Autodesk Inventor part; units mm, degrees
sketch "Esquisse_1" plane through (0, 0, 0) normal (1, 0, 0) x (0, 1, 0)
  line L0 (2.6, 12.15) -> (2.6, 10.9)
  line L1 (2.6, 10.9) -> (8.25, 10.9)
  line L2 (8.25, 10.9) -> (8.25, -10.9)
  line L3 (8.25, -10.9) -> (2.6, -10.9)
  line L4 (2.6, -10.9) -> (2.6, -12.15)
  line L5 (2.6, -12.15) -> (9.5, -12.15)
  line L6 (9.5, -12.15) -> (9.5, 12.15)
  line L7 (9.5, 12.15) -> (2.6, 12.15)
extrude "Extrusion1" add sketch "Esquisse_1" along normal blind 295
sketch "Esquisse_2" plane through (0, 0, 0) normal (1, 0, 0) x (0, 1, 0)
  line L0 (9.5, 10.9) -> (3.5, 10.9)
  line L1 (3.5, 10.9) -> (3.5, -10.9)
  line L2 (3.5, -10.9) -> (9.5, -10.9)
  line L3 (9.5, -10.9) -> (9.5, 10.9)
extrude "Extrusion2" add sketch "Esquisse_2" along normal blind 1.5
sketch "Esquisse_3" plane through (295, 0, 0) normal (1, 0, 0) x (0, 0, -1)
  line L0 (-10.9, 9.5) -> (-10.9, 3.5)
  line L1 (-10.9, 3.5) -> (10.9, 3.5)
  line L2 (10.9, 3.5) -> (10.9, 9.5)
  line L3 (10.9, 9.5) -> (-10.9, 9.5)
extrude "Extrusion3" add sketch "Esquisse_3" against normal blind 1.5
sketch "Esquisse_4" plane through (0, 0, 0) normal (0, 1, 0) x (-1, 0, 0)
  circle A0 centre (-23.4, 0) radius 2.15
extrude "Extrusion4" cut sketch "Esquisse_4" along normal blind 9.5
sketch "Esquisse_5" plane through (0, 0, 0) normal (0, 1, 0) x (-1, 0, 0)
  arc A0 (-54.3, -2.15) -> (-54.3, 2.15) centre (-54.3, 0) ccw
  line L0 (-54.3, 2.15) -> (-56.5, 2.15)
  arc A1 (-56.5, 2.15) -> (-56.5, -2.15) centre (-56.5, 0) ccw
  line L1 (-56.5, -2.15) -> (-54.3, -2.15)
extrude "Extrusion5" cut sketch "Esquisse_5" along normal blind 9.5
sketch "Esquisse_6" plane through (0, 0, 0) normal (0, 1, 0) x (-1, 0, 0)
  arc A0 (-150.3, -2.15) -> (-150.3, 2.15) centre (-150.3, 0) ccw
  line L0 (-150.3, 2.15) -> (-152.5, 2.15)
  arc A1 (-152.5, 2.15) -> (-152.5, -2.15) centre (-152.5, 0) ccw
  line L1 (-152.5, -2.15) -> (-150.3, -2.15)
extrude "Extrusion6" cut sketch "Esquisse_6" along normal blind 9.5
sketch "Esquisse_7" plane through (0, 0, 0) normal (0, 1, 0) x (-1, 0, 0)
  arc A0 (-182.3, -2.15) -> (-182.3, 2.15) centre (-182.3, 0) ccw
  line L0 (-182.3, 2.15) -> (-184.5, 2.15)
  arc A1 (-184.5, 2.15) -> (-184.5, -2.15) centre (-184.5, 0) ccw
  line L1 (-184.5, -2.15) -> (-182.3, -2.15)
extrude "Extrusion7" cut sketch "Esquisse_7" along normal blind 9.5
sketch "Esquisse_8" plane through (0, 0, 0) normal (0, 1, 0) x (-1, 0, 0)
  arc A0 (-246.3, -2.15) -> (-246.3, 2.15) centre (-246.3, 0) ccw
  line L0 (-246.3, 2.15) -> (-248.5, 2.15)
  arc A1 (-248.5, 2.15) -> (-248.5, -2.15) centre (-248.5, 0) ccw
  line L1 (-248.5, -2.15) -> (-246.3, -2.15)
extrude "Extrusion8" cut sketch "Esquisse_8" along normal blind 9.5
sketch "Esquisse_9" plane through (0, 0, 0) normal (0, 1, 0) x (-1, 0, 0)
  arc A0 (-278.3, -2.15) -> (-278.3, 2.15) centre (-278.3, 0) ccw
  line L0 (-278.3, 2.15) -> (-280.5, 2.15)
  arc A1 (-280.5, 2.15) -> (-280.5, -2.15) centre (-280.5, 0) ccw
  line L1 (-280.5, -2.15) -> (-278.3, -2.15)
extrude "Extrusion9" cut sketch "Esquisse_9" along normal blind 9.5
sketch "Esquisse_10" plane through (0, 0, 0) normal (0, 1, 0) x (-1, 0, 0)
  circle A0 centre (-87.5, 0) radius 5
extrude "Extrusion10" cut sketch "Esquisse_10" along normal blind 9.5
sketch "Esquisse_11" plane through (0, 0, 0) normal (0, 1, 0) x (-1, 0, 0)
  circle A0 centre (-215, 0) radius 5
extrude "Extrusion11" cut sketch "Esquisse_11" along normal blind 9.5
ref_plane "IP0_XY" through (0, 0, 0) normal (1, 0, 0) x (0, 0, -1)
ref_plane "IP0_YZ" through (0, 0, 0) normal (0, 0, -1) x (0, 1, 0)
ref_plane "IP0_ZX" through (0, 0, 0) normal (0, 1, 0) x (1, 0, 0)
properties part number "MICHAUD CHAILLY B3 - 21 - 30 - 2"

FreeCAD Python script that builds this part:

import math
import FreeCAD as App
import Part
import Sketcher

V = App.Vector
Q = App.Units.Quantity


def add_polygon(sketch, points):
    """Adds a closed chain of lines whose ends are joined by coincident constraints."""
    first, n = sketch.GeometryCount, len(points)
    for a, b in zip(points, points[1:] + points[:1]):
        sketch.addGeometry(Part.LineSegment(App.Vector(*a, 0), App.Vector(*b, 0)), False)
    for i in range(n):
        sketch.addConstraint(Sketcher.Constraint("Coincident", first + i, 2, first + (i + 1) % n, 1))

doc = App.newDocument("Part")
body = doc.addObject("PartDesign::Body", "Body")

# Sketch on YZ plane
sketch1 = body.newObject("Sketcher::SketchObject", "Sketch")
sketch1.AttachmentSupport = (doc.getObject("YZ_Plane"), [""])
sketch1.MapMode = "FlatFace"
add_polygon(sketch1, [(9.5, 12.2), (2.6, 12.2), (2.6, 10.9), (8.2, 10.9), (8.2, -10.9), (2.6, -10.9), (2.6, -12.2), (9.5, -12.2)])  # lines 0-7
sketch1.addConstraint(Sketcher.Constraint("Horizontal", 0))
sketch1.addConstraint(Sketcher.Constraint("Vertical", 1))
sketch1.addConstraint(Sketcher.Constraint("Horizontal", 2))
sketch1.addConstraint(Sketcher.Constraint("Vertical", 3))
sketch1.addConstraint(Sketcher.Constraint("Horizontal", 4))
sketch1.addConstraint(Sketcher.Constraint("Vertical", 5))
sketch1.addConstraint(Sketcher.Constraint("Horizontal", 6))
sketch1.addConstraint(Sketcher.Constraint("Vertical", 7))
sketch1.addConstraint(Sketcher.Constraint("Symmetric", 1, 2, 4, 2, -1))
sketch1.addConstraint(Sketcher.Constraint("Equal", 1, 5))
sketch1.addConstraint(Sketcher.Constraint("DistanceX", 0, 2, 0, 1, Q("6.9 mm")))
sketch1.addConstraint(Sketcher.Constraint("DistanceY", 3, 2, 3, 1, Q("21.8 mm")))
sketch1.addConstraint(Sketcher.Constraint("DistanceY", 7, 1, 7, 2, Q("24.3 mm")))
sketch1.addConstraint(Sketcher.Constraint("DistanceX", 2, 1, 2, 2, Q("5.65 mm")))
sketch1.addConstraint(Sketcher.Constraint("DistanceX", -1, 1, 0, 2, Q("2.6 mm")))
pad1 = body.newObject("PartDesign::Pad", "Pad")
pad1.Profile = sketch1
pad1.Length = 295

# Sketch on YZ plane
sketch2 = body.newObject("Sketcher::SketchObject", "Sketch001")
sketch2.AttachmentSupport = (doc.getObject("YZ_Plane"), [""])
sketch2.MapMode = "FlatFace"
add_polygon(sketch2, [(10, -11), (10, 11), (4, 11), (4, -11)])  # lines 0-3
sketch2.addConstraint(Sketcher.Constraint("Vertical", 0))
sketch2.addConstraint(Sketcher.Constraint("Horizontal", 1))
sketch2.addConstraint(Sketcher.Constraint("Vertical", 2))
sketch2.addConstraint(Sketcher.Constraint("Horizontal", 3))
sketch2.addConstraint(Sketcher.Constraint("DistanceX", 1, 2, 1, 1, Q("6 mm")))
sketch2.addConstraint(Sketcher.Constraint("DistanceY", 0, 1, 0, 2, Q("21.8 mm")))
sketch2.addConstraint(Sketcher.Constraint("DistanceX", -1, 1, 0, 2, Q("9.5 mm")))
sketch2.addConstraint(Sketcher.Constraint("DistanceY", -1, 1, 0, 2, Q("10.9 mm")))
pad2 = body.newObject("PartDesign::Pad", "Pad001")
pad2.Profile = sketch2
pad2.Length = 1.5

# Sketch on YZ plane
sketch3 = body.newObject("Sketcher::SketchObject", "Sketch002")
sketch3.AttachmentSupport = (doc.getObject("YZ_Plane"), [""])
sketch3.MapMode = "FlatFace"
sketch3.AttachmentOffset = App.Placement(V(0, 0, 295), App.Rotation())
add_polygon(sketch3, [(10, -11), (10, 11), (4, 11), (4, -11)])  # lines 0-3
sketch3.addConstraint(Sketcher.Constraint("Vertical", 0))
sketch3.addConstraint(Sketcher.Constraint("Horizontal", 1))
sketch3.addConstraint(Sketcher.Constraint("Vertical", 2))
sketch3.addConstraint(Sketcher.Constraint("Horizontal", 3))
sketch3.addConstraint(Sketcher.Constraint("DistanceX", 1, 2, 1, 1, Q("6 mm")))
sketch3.addConstraint(Sketcher.Constraint("DistanceY", 0, 1, 0, 2, Q("21.8 mm")))
sketch3.addConstraint(Sketcher.Constraint("DistanceX", -1, 1, 0, 2, Q("9.5 mm")))
sketch3.addConstraint(Sketcher.Constraint("DistanceY", -1, 1, 0, 2, Q("10.9 mm")))
pad3 = body.newObject("PartDesign::Pad", "Pad002")
pad3.Profile = sketch3
pad3.Length = 1.5
pad3.Reversed = True

# Sketch on XZ plane
sketch4 = body.newObject("Sketcher::SketchObject", "Sketch003")
sketch4.AttachmentSupport = (doc.getObject("XZ_Plane"), [""])
sketch4.MapMode = "FlatFace"
sketch4.addGeometry(Part.Circle(V(23.4, 0, 0), V(0, 0, 1), 2.1), False)
sketch4.addConstraint(Sketcher.Constraint("PointOnObject", 0, 3, -1))
sketch4.addConstraint(Sketcher.Constraint("Diameter", 0, Q("4.3 mm")))
sketch4.addConstraint(Sketcher.Constraint("DistanceX", -1, 1, 0, 3, Q("23.4 mm")))
pocket1 = body.newObject("PartDesign::Pocket", "Pocket")
pocket1.Profile = sketch4
pocket1.Length = 9.5

# Sketch on XZ plane
sketch5 = body.newObject("Sketcher::SketchObject", "Sketch004")
sketch5.AttachmentSupport = (doc.getObject("XZ_Plane"), [""])
sketch5.MapMode = "FlatFace"
sketch5.addGeometry(Part.LineSegment(V(56.5, -2.1, 0), V(54.3, -2.1, 0)), False)
sketch5.addGeometry(Part.ArcOfCircle(Part.Circle(V(54.3, 0, 0), V(0, 0, 1), 2.1), math.radians(90), math.radians(270)), False)
sketch5.addGeometry(Part.LineSegment(V(54.3, 2.1, 0), V(56.5, 2.1, 0)), False)
sketch5.addGeometry(Part.ArcOfCircle(Part.Circle(V(56.5, 0, 0), V(0, 0, 1), 2.1), math.radians(-90), math.radians(90)), False)
sketch5.addConstraint(Sketcher.Constraint("Tangent", 0, 2, 1, 2))
sketch5.addConstraint(Sketcher.Constraint("Tangent", 1, 1, 2, 1))
sketch5.addConstraint(Sketcher.Constraint("Tangent", 2, 2, 3, 2))
sketch5.addConstraint(Sketcher.Constraint("Tangent", 3, 1, 0, 1))
sketch5.addConstraint(Sketcher.Constraint("Horizontal", 0))
sketch5.addConstraint(Sketcher.Constraint("Horizontal", 2))
sketch5.addConstraint(Sketcher.Constraint("PointOnObject", 1, 3, -1))
sketch5.addConstraint(Sketcher.Constraint("Radius", 1, Q("2.15 mm")))
sketch5.addConstraint(Sketcher.Constraint("DistanceX", 0, 2, 0, 1, Q("2.2 mm")))
sketch5.addConstraint(Sketcher.Constraint("DistanceX", -1, 1, 1, 3, Q("54.3 mm")))
pocket2 = body.newObject("PartDesign::Pocket", "Pocket001")
pocket2.Profile = sketch5
pocket2.Length = 9.5

# Sketch on XZ plane
sketch6 = body.newObject("Sketcher::SketchObject", "Sketch005")
sketch6.AttachmentSupport = (doc.getObject("XZ_Plane"), [""])
sketch6.MapMode = "FlatFace"
sketch6.addGeometry(Part.LineSegment(V(152.5, -2.1, 0), V(150.3, -2.1, 0)), False)
sketch6.addGeometry(Part.ArcOfCircle(Part.Circle(V(150.3, 0, 0), V(0, 0, 1), 2.1), math.radians(90), math.radians(270)), False)
sketch6.addGeometry(Part.LineSegment(V(150.3, 2.1, 0), V(152.5, 2.1, 0)), False)
sketch6.addGeometry(Part.ArcOfCircle(Part.Circle(V(152.5, 0, 0), V(0, 0, 1), 2.1), math.radians(-90), math.radians(90)), False)
sketch6.addConstraint(Sketcher.Constraint("Tangent", 0, 2, 1, 2))
sketch6.addConstraint(Sketcher.Constraint("Tangent", 1, 1, 2, 1))
sketch6.addConstraint(Sketcher.Constraint("Tangent", 2, 2, 3, 2))
sketch6.addConstraint(Sketcher.Constraint("Tangent", 3, 1, 0, 1))
sketch6.addConstraint(Sketcher.Constraint("Horizontal", 0))
sketch6.addConstraint(Sketcher.Constraint("Horizontal", 2))
sketch6.addConstraint(Sketcher.Constraint("PointOnObject", 1, 3, -1))
sketch6.addConstraint(Sketcher.Constraint("Radius", 1, Q("2.15 mm")))
sketch6.addConstraint(Sketcher.Constraint("DistanceX", 0, 2, 0, 1, Q("2.2 mm")))
sketch6.addConstraint(Sketcher.Constraint("DistanceX", -1, 1, 1, 3, Q("150.3 mm")))
pocket3 = body.newObject("PartDesign::Pocket", "Pocket002")
pocket3.Profile = sketch6
pocket3.Length = 9.5

# Sketch on XZ plane
sketch7 = body.newObject("Sketcher::SketchObject", "Sketch006")
sketch7.AttachmentSupport = (doc.getObject("XZ_Plane"), [""])
sketch7.MapMode = "FlatFace"
sketch7.addGeometry(Part.LineSegment(V(184.5, -2.1, 0), V(182.3, -2.1, 0)), False)
sketch7.addGeometry(Part.ArcOfCircle(Part.Circle(V(182.3, 0, 0), V(0, 0, 1), 2.1), math.radians(90), math.radians(270)), False)
sketch7.addGeometry(Part.LineSegment(V(182.3, 2.1, 0), V(184.5, 2.1, 0)), False)
sketch7.addGeometry(Part.ArcOfCircle(Part.Circle(V(184.5, 0, 0), V(0, 0, 1), 2.1), math.radians(-90), math.radians(90)), False)
sketch7.addConstraint(Sketcher.Constraint("Tangent", 0, 2, 1, 2))
sketch7.addConstraint(Sketcher.Constraint("Tangent", 1, 1, 2, 1))
sketch7.addConstraint(Sketcher.Constraint("Tangent", 2, 2, 3, 2))
sketch7.addConstraint(Sketcher.Constraint("Tangent", 3, 1, 0, 1))
sketch7.addConstraint(Sketcher.Constraint("Horizontal", 0))
sketch7.addConstraint(Sketcher.Constraint("Horizontal", 2))
sketch7.addConstraint(Sketcher.Constraint("PointOnObject", 1, 3, -1))
sketch7.addConstraint(Sketcher.Constraint("Radius", 1, Q("2.15 mm")))
sketch7.addConstraint(Sketcher.Constraint("DistanceX", 0, 2, 0, 1, Q("2.2 mm")))
sketch7.addConstraint(Sketcher.Constraint("DistanceX", -1, 1, 1, 3, Q("182.3 mm")))
pocket4 = body.newObject("PartDesign::Pocket", "Pocket003")
pocket4.Profile = sketch7
pocket4.Length = 9.5

# Sketch on XZ plane
sketch8 = body.newObject("Sketcher::SketchObject", "Sketch007")
sketch8.AttachmentSupport = (doc.getObject("XZ_Plane"), [""])
sketch8.MapMode = "FlatFace"
sketch8.addGeometry(Part.LineSegment(V(248.5, -2.1, 0), V(246.3, -2.1, 0)), False)
sketch8.addGeometry(Part.ArcOfCircle(Part.Circle(V(246.3, 0, 0), V(0, 0, 1), 2.1), math.radians(90), math.radians(270)), False)
sketch8.addGeometry(Part.LineSegment(V(246.3, 2.1, 0), V(248.5, 2.1, 0)), False)
sketch8.addGeometry(Part.ArcOfCircle(Part.Circle(V(248.5, 0, 0), V(0, 0, 1), 2.1), math.radians(-90), math.radians(90)), False)
sketch8.addConstraint(Sketcher.Constraint("Tangent", 0, 2, 1, 2))
sketch8.addConstraint(Sketcher.Constraint("Tangent", 1, 1, 2, 1))
sketch8.addConstraint(Sketcher.Constraint("Tangent", 2, 2, 3, 2))
sketch8.addConstraint(Sketcher.Constraint("Tangent", 3, 1, 0, 1))
sketch8.addConstraint(Sketcher.Constraint("Horizontal", 0))
sketch8.addConstraint(Sketcher.Constraint("Horizontal", 2))
sketch8.addConstraint(Sketcher.Constraint("PointOnObject", 1, 3, -1))
sketch8.addConstraint(Sketcher.Constraint("Radius", 1, Q("2.15 mm")))
sketch8.addConstraint(Sketcher.Constraint("DistanceX", 0, 2, 0, 1, Q("2.2 mm")))
sketch8.addConstraint(Sketcher.Constraint("DistanceX", -1, 1, 1, 3, Q("246.3 mm")))
pocket5 = body.newObject("PartDesign::Pocket", "Pocket004")
pocket5.Profile = sketch8
pocket5.Length = 9.5

# Sketch on XZ plane
sketch9 = body.newObject("Sketcher::SketchObject", "Sketch008")
sketch9.AttachmentSupport = (doc.getObject("XZ_Plane"), [""])
sketch9.MapMode = "FlatFace"
sketch9.addGeometry(Part.LineSegment(V(280.5, -2.1, 0), V(278.3, -2.1, 0)), False)
sketch9.addGeometry(Part.ArcOfCircle(Part.Circle(V(278.3, 0, 0), V(0, 0, 1), 2.1), math.radians(90), math.radians(270)), False)
sketch9.addGeometry(Part.LineSegment(V(278.3, 2.1, 0), V(280.5, 2.1, 0)), False)
sketch9.addGeometry(Part.ArcOfCircle(Part.Circle(V(280.5, 0, 0), V(0, 0, 1), 2.1), math.radians(-90), math.radians(90)), False)
sketch9.addConstraint(Sketcher.Constraint("Tangent", 0, 2, 1, 2))
sketch9.addConstraint(Sketcher.Constraint("Tangent", 1, 1, 2, 1))
sketch9.addConstraint(Sketcher.Constraint("Tangent", 2, 2, 3, 2))
sketch9.addConstraint(Sketcher.Constraint("Tangent", 3, 1, 0, 1))
sketch9.addConstraint(Sketcher.Constraint("Horizontal", 0))
sketch9.addConstraint(Sketcher.Constraint("Horizontal", 2))
sketch9.addConstraint(Sketcher.Constraint("PointOnObject", 1, 3, -1))
sketch9.addConstraint(Sketcher.Constraint("Radius", 1, Q("2.15 mm")))
sketch9.addConstraint(Sketcher.Constraint("DistanceX", 0, 2, 0, 1, Q("2.2 mm")))
sketch9.addConstraint(Sketcher.Constraint("DistanceX", -1, 1, 1, 3, Q("278.3 mm")))
pocket6 = body.newObject("PartDesign::Pocket", "Pocket005")
pocket6.Profile = sketch9
pocket6.Length = 9.5

# Sketch on XZ plane
sketch10 = body.newObject("Sketcher::SketchObject", "Sketch009")
sketch10.AttachmentSupport = (doc.getObject("XZ_Plane"), [""])
sketch10.MapMode = "FlatFace"
sketch10.addGeometry(Part.Circle(V(88, 0, 0), V(0, 0, 1), 5), False)
sketch10.addConstraint(Sketcher.Constraint("PointOnObject", 0, 3, -1))
sketch10.addConstraint(Sketcher.Constraint("Diameter", 0, Q("10 mm")))
sketch10.addConstraint(Sketcher.Constraint("DistanceX", -1, 1, 0, 3, Q("87.5 mm")))
pocket7 = body.newObject("PartDesign::Pocket", "Pocket006")
pocket7.Profile = sketch10
pocket7.Length = 9.5

# Sketch on XZ plane
sketch11 = body.newObject("Sketcher::SketchObject", "Sketch010")
sketch11.AttachmentSupport = (doc.getObject("XZ_Plane"), [""])
sketch11.MapMode = "FlatFace"
sketch11.addGeometry(Part.Circle(V(215, 0, 0), V(0, 0, 1), 5), False)
sketch11.addConstraint(Sketcher.Constraint("PointOnObject", 0, 3, -1))
sketch11.addConstraint(Sketcher.Constraint("Diameter", 0, Q("10 mm")))
sketch11.addConstraint(Sketcher.Constraint("DistanceX", -1, 1, 0, 3, Q("215 mm")))
pocket8 = body.newObject("PartDesign::Pocket", "Pocket007")
pocket8.Profile = sketch11
pocket8.Length = 9.5

doc.recompute()
